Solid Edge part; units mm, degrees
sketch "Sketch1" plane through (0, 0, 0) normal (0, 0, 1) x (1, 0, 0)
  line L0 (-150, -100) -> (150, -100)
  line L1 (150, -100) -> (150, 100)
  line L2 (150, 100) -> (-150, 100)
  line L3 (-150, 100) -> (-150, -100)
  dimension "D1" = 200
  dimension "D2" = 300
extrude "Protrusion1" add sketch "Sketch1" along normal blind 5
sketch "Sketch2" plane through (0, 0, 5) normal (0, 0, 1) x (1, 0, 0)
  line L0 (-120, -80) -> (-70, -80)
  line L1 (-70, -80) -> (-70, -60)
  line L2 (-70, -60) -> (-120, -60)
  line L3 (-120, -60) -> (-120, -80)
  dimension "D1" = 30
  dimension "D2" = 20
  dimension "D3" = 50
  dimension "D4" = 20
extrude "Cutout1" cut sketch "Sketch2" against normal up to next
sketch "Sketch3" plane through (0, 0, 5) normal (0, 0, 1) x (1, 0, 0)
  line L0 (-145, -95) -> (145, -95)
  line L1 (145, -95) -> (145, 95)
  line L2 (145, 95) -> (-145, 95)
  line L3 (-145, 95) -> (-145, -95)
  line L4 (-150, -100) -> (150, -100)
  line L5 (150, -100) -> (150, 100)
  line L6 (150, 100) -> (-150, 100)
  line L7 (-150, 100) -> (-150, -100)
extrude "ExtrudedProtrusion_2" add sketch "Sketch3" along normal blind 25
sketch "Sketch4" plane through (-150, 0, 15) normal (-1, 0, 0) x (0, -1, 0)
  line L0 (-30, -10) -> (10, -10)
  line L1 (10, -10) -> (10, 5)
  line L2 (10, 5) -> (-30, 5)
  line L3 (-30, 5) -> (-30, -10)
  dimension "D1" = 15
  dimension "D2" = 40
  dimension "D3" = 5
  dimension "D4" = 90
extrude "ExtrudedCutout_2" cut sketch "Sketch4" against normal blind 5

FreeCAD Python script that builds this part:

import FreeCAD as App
import Part
import Sketcher

V = App.Vector


def add_polygon(sketch, points):
    """Adds a closed chain of lines whose ends are joined by coincident constraints."""
    first, n = sketch.GeometryCount, len(points)
    for a, b in zip(points, points[1:] + points[:1]):
        sketch.addGeometry(Part.LineSegment(App.Vector(*a, 0), App.Vector(*b, 0)), False)
    for i in range(n):
        sketch.addConstraint(Sketcher.Constraint("Coincident", first + i, 2, first + (i + 1) % n, 1))

doc = App.newDocument("Part")
params = doc.addObject("Spreadsheet::Sheet", "Params")
for row, (alias, value) in enumerate([
    ("sketch1_height", "200 mm"),
    ("pad1_length", "5 mm"),
    ("sketch2_height", "20 mm"),
    ("sketch3_width", "300 mm"),
    ("sketch3_width2", "290 mm"),
    ("sketch3_height", "200 mm"),
    ("sketch3_height2", "190 mm"),
    ("pad2_length", "25 mm"),
    ("sketch4_width", "40 mm"),
    ("sketch4_height", "15 mm"),
    ("pocket2_length", "5 mm"),
], start=1):
    params.set(f"A{row}", alias)
    params.set(f"B{row}", "=" + value)
    params.setAlias(f"B{row}", alias)

body = doc.addObject("PartDesign::Body", "Body")

# Sketch on XY plane
sketch1 = body.newObject("Sketcher::SketchObject", "Sketch")
sketch1.AttachmentSupport = (doc.getObject("XY_Plane"), [""])
sketch1.MapMode = "FlatFace"
add_polygon(sketch1, [(-150, 100), (-150, -100), (150, -100), (150, 100)])  # lines 0-3
sketch1.addConstraint([
    Sketcher.Constraint("Vertical", 0),
    Sketcher.Constraint("Horizontal", 1),
    Sketcher.Constraint("Vertical", 2),
    Sketcher.Constraint("Horizontal", 3),
    Sketcher.Constraint("Symmetric", 0, 2, 2, 2, -1, 1),
    Sketcher.Constraint("DistanceX", 0, 2, -1, 1, 150.0),
    Sketcher.Constraint("DistanceY", 0, 2, 0, 1, 200.0),
])
sketch1.setExpression("Constraints[10]", "Params.sketch1_height")
pad1 = body.newObject("PartDesign::Pad", "Pad")
pad1.Profile = sketch1
pad1.setExpression("Length", "Params.pad1_length")

# Sketch on XY plane
sketch2 = body.newObject("Sketcher::SketchObject", "Sketch001")
sketch2.AttachmentSupport = (doc.getObject("XY_Plane"), [""])
sketch2.MapMode = "FlatFace"
sketch2.AttachmentOffset = App.Placement(V(0, 0, 5), App.Rotation())
add_polygon(sketch2, [(-120, -60), (-120, -80), (-70, -80), (-70, -60)])  # lines 0-3
sketch2.addConstraint([
    Sketcher.Constraint("Vertical", 0),
    Sketcher.Constraint("Horizontal", 1),
    Sketcher.Constraint("Vertical", 2),
    Sketcher.Constraint("Horizontal", 3),
    Sketcher.Constraint("DistanceX", 0, 2, -1, 1, 120.0),
    Sketcher.Constraint("DistanceX", 1, 2, -1, 1, 70.0),
    Sketcher.Constraint("DistanceY", 0, 2, 0, 1, 20.0),
    Sketcher.Constraint("DistanceY", 0, 2, -1, 1, 80.0),
])
sketch2.setExpression("Constraints[10]", "Params.sketch2_height")
pocket1 = body.newObject("PartDesign::Pocket", "Pocket")
pocket1.Profile = sketch2
pocket1.Type = "UpToFirst"

# Sketch on XY plane
sketch3 = body.newObject("Sketcher::SketchObject", "Sketch002")
sketch3.AttachmentSupport = (doc.getObject("XY_Plane"), [""])
sketch3.MapMode = "FlatFace"
sketch3.AttachmentOffset = App.Placement(V(0, 0, 5), App.Rotation())
add_polygon(sketch3, [(-150, 100), (-150, -100), (150, -100), (150, 100)])  # lines 0-3
add_polygon(sketch3, [(145, -95), (-145, -95), (-145, 95), (145, 95)])  # lines 4-7
sketch3.addConstraint([
    Sketcher.Constraint("Vertical", 0),
    Sketcher.Constraint("Horizontal", 1),
    Sketcher.Constraint("Vertical", 2),
    Sketcher.Constraint("Horizontal", 3),
    Sketcher.Constraint("Horizontal", 4),
    Sketcher.Constraint("Vertical", 5),
    Sketcher.Constraint("Horizontal", 6),
    Sketcher.Constraint("Vertical", 7),
    Sketcher.Constraint("Symmetric", 0, 2, 2, 2, -1, 1),
    Sketcher.Constraint("Symmetric", 4, 2, 6, 2, -1, 1),
    Sketcher.Constraint("DistanceX", 1, 1, 1, 2, 300.0),
    Sketcher.Constraint("DistanceX", 4, 2, 4, 1, 290.0),
    Sketcher.Constraint("DistanceY", 0, 2, 0, 1, 200.0),
    Sketcher.Constraint("DistanceY", 5, 1, 5, 2, 190.0),
])
sketch3.setExpression("Constraints[18]", "Params.sketch3_width")
sketch3.setExpression("Constraints[19]", "Params.sketch3_width2")
sketch3.setExpression("Constraints[20]", "Params.sketch3_height")
sketch3.setExpression("Constraints[21]", "Params.sketch3_height2")
pad2 = body.newObject("PartDesign::Pad", "Pad001")
pad2.Profile = sketch3
pad2.setExpression("Length", "Params.pad2_length")

# Sketch on YZ plane
sketch4 = body.newObject("Sketcher::SketchObject", "Sketch003")
sketch4.AttachmentSupport = (doc.getObject("YZ_Plane"), [""])
sketch4.MapMode = "FlatFace"
sketch4.AttachmentOffset = App.Placement(V(0, 0, -150), App.Rotation())
add_polygon(sketch4, [(30, 20), (30, 5), (-10, 5), (-10, 20)])  # lines 0-3
sketch4.addConstraint([
    Sketcher.Constraint("Vertical", 0),
    Sketcher.Constraint("Horizontal", 1),
    Sketcher.Constraint("Vertical", 2),
    Sketcher.Constraint("Horizontal", 3),
    Sketcher.Constraint("DistanceX", 1, 2, -1, 1, 10.0),
    Sketcher.Constraint("DistanceX", 1, 2, 1, 1, 40.0),
    Sketcher.Constraint("DistanceY", 0, 2, 0, 1, 15.0),
    Sketcher.Constraint("DistanceY", -1, 1, 0, 2, 5.0),
])
sketch4.setExpression("Constraints[9]", "Params.sketch4_width")
sketch4.setExpression("Constraints[10]", "Params.sketch4_height")
pocket2 = body.newObject("PartDesign::Pocket", "Pocket001")
pocket2.Profile = sketch4
pocket2.setExpression("Length", "Params.pocket2_length")
pocket2.Reversed = True

doc.recompute()
